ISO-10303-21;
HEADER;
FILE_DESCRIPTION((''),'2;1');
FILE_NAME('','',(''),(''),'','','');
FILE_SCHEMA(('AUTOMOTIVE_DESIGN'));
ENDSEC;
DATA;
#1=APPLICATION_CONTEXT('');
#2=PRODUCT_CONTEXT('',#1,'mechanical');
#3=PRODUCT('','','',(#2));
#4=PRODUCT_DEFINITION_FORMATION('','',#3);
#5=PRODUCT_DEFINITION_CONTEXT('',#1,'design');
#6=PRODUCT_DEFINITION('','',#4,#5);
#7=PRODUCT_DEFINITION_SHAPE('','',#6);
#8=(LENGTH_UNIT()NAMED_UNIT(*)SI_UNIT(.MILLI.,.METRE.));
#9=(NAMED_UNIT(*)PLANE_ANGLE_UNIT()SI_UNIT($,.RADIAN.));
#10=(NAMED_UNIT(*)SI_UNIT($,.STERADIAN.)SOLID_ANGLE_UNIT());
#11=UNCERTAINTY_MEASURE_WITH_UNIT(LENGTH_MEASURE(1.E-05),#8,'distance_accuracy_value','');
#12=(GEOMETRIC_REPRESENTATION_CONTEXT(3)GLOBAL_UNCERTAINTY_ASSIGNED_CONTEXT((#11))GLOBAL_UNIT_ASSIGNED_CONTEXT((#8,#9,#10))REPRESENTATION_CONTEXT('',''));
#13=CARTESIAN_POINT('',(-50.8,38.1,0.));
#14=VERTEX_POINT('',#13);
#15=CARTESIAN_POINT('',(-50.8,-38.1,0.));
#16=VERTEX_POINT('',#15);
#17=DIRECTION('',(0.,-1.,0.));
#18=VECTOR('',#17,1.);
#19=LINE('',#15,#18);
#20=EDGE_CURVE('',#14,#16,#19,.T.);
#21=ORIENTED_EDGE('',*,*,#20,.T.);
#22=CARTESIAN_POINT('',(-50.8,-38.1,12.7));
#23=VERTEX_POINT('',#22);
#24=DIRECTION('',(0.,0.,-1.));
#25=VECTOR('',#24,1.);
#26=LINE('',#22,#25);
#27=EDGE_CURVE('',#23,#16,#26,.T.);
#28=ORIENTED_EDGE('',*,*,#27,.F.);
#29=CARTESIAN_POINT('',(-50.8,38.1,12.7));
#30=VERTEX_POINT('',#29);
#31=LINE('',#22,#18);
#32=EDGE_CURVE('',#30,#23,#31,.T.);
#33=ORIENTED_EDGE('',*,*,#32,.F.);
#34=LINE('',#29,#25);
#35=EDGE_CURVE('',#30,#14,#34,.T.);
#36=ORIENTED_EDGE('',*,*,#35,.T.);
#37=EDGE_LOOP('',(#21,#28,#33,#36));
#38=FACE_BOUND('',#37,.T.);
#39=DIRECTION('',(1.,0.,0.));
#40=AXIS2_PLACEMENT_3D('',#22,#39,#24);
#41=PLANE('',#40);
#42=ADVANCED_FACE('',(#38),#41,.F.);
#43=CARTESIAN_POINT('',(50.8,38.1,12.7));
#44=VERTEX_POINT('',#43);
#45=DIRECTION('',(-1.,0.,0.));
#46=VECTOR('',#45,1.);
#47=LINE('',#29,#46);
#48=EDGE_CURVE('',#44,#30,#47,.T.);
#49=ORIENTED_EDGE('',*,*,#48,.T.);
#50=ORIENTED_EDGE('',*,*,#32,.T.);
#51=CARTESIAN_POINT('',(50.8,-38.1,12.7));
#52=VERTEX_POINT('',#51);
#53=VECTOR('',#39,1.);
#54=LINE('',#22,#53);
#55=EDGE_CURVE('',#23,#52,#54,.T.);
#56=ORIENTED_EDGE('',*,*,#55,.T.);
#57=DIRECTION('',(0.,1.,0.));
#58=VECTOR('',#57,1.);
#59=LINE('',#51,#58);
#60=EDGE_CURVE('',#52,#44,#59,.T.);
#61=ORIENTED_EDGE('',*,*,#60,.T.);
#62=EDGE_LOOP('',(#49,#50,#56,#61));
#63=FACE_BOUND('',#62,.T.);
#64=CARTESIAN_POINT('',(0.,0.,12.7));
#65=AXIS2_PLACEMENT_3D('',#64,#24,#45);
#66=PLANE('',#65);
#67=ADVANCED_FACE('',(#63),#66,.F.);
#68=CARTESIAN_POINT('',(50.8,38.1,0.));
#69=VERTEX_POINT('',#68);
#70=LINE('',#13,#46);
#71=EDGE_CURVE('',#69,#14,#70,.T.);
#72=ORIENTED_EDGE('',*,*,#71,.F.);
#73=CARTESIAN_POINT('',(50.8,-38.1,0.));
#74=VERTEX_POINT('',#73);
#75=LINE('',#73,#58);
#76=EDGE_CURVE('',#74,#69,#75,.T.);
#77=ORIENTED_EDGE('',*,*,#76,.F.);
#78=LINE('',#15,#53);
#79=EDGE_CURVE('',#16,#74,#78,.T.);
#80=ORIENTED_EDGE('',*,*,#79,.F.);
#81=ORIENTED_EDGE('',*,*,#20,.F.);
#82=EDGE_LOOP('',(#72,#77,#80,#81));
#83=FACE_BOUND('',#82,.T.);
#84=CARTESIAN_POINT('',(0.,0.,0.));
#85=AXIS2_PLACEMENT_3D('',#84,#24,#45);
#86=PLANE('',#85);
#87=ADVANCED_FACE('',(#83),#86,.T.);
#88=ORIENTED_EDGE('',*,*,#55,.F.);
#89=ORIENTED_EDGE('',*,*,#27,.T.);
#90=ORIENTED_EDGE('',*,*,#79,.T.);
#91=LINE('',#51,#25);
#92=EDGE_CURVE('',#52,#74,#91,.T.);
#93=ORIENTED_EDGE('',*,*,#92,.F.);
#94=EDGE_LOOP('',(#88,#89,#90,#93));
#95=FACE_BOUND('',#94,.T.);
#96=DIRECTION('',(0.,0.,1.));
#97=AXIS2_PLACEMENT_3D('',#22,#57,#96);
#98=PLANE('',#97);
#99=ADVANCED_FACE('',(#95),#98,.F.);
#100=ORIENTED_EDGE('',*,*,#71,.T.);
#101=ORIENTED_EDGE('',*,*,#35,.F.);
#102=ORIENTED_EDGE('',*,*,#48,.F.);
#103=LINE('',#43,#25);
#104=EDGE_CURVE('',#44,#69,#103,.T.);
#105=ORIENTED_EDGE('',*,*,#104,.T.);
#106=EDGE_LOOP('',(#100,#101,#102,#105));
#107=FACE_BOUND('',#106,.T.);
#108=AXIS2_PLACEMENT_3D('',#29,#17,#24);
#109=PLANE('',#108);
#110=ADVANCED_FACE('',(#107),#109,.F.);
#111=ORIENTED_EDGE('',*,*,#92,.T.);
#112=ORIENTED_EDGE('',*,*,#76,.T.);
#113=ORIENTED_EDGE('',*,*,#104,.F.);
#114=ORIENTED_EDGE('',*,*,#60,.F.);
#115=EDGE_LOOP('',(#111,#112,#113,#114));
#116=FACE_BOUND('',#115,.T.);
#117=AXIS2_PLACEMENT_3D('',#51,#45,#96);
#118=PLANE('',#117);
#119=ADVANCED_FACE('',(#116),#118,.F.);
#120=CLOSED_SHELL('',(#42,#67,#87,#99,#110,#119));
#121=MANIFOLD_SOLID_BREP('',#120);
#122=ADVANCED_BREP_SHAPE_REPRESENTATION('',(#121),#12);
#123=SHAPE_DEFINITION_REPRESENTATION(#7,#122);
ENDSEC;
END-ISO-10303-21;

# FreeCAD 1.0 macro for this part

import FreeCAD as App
import Part
import Sketcher
from FreeCAD import Vector
Q = App.Units.Quantity


def add_polygon(sketch, points):
    """Adds a closed chain of lines whose ends are joined by coincident constraints."""
    first, n = sketch.GeometryCount, len(points)
    for a, b in zip(points, points[1:] + points[:1]):
        sketch.addGeometry(Part.LineSegment(App.Vector(*a, 0), App.Vector(*b, 0)), False)
    for i in range(n):
        sketch.addConstraint(Sketcher.Constraint("Coincident", first + i, 2, first + (i + 1) % n, 1))

doc = App.newDocument("Part")
body = doc.addObject("PartDesign::Body", "Body")

# Sketch on XY plane
sketch1 = body.newObject("Sketcher::SketchObject", "Sketch")
sketch1.AttachmentSupport = (doc.getObject("XY_Plane"), [""])
sketch1.MapMode = "FlatFace"
add_polygon(sketch1, [(-51, 38), (-51, -38), (51, -38), (51, 38)])  # lines 0-3
sketch1.addConstraint(Sketcher.Constraint("Vertical", 0))
sketch1.addConstraint(Sketcher.Constraint("Horizontal", 1))
sketch1.addConstraint(Sketcher.Constraint("Vertical", 2))
sketch1.addConstraint(Sketcher.Constraint("Horizontal", 3))
sketch1.addConstraint(Sketcher.Constraint("Symmetric", 0, 2, 2, 2, -1, 1))
sketch1.addConstraint(Sketcher.Constraint("DistanceX", 1, 1, 1, 2, Q("4 in")))
sketch1.addConstraint(Sketcher.Constraint("DistanceY", 0, 2, 0, 1, Q("3 in")))
pad1 = body.newObject("PartDesign::Pad", "Pad")
pad1.Profile = sketch1
pad1.Length = Q("0.5 in")

doc.recompute()
